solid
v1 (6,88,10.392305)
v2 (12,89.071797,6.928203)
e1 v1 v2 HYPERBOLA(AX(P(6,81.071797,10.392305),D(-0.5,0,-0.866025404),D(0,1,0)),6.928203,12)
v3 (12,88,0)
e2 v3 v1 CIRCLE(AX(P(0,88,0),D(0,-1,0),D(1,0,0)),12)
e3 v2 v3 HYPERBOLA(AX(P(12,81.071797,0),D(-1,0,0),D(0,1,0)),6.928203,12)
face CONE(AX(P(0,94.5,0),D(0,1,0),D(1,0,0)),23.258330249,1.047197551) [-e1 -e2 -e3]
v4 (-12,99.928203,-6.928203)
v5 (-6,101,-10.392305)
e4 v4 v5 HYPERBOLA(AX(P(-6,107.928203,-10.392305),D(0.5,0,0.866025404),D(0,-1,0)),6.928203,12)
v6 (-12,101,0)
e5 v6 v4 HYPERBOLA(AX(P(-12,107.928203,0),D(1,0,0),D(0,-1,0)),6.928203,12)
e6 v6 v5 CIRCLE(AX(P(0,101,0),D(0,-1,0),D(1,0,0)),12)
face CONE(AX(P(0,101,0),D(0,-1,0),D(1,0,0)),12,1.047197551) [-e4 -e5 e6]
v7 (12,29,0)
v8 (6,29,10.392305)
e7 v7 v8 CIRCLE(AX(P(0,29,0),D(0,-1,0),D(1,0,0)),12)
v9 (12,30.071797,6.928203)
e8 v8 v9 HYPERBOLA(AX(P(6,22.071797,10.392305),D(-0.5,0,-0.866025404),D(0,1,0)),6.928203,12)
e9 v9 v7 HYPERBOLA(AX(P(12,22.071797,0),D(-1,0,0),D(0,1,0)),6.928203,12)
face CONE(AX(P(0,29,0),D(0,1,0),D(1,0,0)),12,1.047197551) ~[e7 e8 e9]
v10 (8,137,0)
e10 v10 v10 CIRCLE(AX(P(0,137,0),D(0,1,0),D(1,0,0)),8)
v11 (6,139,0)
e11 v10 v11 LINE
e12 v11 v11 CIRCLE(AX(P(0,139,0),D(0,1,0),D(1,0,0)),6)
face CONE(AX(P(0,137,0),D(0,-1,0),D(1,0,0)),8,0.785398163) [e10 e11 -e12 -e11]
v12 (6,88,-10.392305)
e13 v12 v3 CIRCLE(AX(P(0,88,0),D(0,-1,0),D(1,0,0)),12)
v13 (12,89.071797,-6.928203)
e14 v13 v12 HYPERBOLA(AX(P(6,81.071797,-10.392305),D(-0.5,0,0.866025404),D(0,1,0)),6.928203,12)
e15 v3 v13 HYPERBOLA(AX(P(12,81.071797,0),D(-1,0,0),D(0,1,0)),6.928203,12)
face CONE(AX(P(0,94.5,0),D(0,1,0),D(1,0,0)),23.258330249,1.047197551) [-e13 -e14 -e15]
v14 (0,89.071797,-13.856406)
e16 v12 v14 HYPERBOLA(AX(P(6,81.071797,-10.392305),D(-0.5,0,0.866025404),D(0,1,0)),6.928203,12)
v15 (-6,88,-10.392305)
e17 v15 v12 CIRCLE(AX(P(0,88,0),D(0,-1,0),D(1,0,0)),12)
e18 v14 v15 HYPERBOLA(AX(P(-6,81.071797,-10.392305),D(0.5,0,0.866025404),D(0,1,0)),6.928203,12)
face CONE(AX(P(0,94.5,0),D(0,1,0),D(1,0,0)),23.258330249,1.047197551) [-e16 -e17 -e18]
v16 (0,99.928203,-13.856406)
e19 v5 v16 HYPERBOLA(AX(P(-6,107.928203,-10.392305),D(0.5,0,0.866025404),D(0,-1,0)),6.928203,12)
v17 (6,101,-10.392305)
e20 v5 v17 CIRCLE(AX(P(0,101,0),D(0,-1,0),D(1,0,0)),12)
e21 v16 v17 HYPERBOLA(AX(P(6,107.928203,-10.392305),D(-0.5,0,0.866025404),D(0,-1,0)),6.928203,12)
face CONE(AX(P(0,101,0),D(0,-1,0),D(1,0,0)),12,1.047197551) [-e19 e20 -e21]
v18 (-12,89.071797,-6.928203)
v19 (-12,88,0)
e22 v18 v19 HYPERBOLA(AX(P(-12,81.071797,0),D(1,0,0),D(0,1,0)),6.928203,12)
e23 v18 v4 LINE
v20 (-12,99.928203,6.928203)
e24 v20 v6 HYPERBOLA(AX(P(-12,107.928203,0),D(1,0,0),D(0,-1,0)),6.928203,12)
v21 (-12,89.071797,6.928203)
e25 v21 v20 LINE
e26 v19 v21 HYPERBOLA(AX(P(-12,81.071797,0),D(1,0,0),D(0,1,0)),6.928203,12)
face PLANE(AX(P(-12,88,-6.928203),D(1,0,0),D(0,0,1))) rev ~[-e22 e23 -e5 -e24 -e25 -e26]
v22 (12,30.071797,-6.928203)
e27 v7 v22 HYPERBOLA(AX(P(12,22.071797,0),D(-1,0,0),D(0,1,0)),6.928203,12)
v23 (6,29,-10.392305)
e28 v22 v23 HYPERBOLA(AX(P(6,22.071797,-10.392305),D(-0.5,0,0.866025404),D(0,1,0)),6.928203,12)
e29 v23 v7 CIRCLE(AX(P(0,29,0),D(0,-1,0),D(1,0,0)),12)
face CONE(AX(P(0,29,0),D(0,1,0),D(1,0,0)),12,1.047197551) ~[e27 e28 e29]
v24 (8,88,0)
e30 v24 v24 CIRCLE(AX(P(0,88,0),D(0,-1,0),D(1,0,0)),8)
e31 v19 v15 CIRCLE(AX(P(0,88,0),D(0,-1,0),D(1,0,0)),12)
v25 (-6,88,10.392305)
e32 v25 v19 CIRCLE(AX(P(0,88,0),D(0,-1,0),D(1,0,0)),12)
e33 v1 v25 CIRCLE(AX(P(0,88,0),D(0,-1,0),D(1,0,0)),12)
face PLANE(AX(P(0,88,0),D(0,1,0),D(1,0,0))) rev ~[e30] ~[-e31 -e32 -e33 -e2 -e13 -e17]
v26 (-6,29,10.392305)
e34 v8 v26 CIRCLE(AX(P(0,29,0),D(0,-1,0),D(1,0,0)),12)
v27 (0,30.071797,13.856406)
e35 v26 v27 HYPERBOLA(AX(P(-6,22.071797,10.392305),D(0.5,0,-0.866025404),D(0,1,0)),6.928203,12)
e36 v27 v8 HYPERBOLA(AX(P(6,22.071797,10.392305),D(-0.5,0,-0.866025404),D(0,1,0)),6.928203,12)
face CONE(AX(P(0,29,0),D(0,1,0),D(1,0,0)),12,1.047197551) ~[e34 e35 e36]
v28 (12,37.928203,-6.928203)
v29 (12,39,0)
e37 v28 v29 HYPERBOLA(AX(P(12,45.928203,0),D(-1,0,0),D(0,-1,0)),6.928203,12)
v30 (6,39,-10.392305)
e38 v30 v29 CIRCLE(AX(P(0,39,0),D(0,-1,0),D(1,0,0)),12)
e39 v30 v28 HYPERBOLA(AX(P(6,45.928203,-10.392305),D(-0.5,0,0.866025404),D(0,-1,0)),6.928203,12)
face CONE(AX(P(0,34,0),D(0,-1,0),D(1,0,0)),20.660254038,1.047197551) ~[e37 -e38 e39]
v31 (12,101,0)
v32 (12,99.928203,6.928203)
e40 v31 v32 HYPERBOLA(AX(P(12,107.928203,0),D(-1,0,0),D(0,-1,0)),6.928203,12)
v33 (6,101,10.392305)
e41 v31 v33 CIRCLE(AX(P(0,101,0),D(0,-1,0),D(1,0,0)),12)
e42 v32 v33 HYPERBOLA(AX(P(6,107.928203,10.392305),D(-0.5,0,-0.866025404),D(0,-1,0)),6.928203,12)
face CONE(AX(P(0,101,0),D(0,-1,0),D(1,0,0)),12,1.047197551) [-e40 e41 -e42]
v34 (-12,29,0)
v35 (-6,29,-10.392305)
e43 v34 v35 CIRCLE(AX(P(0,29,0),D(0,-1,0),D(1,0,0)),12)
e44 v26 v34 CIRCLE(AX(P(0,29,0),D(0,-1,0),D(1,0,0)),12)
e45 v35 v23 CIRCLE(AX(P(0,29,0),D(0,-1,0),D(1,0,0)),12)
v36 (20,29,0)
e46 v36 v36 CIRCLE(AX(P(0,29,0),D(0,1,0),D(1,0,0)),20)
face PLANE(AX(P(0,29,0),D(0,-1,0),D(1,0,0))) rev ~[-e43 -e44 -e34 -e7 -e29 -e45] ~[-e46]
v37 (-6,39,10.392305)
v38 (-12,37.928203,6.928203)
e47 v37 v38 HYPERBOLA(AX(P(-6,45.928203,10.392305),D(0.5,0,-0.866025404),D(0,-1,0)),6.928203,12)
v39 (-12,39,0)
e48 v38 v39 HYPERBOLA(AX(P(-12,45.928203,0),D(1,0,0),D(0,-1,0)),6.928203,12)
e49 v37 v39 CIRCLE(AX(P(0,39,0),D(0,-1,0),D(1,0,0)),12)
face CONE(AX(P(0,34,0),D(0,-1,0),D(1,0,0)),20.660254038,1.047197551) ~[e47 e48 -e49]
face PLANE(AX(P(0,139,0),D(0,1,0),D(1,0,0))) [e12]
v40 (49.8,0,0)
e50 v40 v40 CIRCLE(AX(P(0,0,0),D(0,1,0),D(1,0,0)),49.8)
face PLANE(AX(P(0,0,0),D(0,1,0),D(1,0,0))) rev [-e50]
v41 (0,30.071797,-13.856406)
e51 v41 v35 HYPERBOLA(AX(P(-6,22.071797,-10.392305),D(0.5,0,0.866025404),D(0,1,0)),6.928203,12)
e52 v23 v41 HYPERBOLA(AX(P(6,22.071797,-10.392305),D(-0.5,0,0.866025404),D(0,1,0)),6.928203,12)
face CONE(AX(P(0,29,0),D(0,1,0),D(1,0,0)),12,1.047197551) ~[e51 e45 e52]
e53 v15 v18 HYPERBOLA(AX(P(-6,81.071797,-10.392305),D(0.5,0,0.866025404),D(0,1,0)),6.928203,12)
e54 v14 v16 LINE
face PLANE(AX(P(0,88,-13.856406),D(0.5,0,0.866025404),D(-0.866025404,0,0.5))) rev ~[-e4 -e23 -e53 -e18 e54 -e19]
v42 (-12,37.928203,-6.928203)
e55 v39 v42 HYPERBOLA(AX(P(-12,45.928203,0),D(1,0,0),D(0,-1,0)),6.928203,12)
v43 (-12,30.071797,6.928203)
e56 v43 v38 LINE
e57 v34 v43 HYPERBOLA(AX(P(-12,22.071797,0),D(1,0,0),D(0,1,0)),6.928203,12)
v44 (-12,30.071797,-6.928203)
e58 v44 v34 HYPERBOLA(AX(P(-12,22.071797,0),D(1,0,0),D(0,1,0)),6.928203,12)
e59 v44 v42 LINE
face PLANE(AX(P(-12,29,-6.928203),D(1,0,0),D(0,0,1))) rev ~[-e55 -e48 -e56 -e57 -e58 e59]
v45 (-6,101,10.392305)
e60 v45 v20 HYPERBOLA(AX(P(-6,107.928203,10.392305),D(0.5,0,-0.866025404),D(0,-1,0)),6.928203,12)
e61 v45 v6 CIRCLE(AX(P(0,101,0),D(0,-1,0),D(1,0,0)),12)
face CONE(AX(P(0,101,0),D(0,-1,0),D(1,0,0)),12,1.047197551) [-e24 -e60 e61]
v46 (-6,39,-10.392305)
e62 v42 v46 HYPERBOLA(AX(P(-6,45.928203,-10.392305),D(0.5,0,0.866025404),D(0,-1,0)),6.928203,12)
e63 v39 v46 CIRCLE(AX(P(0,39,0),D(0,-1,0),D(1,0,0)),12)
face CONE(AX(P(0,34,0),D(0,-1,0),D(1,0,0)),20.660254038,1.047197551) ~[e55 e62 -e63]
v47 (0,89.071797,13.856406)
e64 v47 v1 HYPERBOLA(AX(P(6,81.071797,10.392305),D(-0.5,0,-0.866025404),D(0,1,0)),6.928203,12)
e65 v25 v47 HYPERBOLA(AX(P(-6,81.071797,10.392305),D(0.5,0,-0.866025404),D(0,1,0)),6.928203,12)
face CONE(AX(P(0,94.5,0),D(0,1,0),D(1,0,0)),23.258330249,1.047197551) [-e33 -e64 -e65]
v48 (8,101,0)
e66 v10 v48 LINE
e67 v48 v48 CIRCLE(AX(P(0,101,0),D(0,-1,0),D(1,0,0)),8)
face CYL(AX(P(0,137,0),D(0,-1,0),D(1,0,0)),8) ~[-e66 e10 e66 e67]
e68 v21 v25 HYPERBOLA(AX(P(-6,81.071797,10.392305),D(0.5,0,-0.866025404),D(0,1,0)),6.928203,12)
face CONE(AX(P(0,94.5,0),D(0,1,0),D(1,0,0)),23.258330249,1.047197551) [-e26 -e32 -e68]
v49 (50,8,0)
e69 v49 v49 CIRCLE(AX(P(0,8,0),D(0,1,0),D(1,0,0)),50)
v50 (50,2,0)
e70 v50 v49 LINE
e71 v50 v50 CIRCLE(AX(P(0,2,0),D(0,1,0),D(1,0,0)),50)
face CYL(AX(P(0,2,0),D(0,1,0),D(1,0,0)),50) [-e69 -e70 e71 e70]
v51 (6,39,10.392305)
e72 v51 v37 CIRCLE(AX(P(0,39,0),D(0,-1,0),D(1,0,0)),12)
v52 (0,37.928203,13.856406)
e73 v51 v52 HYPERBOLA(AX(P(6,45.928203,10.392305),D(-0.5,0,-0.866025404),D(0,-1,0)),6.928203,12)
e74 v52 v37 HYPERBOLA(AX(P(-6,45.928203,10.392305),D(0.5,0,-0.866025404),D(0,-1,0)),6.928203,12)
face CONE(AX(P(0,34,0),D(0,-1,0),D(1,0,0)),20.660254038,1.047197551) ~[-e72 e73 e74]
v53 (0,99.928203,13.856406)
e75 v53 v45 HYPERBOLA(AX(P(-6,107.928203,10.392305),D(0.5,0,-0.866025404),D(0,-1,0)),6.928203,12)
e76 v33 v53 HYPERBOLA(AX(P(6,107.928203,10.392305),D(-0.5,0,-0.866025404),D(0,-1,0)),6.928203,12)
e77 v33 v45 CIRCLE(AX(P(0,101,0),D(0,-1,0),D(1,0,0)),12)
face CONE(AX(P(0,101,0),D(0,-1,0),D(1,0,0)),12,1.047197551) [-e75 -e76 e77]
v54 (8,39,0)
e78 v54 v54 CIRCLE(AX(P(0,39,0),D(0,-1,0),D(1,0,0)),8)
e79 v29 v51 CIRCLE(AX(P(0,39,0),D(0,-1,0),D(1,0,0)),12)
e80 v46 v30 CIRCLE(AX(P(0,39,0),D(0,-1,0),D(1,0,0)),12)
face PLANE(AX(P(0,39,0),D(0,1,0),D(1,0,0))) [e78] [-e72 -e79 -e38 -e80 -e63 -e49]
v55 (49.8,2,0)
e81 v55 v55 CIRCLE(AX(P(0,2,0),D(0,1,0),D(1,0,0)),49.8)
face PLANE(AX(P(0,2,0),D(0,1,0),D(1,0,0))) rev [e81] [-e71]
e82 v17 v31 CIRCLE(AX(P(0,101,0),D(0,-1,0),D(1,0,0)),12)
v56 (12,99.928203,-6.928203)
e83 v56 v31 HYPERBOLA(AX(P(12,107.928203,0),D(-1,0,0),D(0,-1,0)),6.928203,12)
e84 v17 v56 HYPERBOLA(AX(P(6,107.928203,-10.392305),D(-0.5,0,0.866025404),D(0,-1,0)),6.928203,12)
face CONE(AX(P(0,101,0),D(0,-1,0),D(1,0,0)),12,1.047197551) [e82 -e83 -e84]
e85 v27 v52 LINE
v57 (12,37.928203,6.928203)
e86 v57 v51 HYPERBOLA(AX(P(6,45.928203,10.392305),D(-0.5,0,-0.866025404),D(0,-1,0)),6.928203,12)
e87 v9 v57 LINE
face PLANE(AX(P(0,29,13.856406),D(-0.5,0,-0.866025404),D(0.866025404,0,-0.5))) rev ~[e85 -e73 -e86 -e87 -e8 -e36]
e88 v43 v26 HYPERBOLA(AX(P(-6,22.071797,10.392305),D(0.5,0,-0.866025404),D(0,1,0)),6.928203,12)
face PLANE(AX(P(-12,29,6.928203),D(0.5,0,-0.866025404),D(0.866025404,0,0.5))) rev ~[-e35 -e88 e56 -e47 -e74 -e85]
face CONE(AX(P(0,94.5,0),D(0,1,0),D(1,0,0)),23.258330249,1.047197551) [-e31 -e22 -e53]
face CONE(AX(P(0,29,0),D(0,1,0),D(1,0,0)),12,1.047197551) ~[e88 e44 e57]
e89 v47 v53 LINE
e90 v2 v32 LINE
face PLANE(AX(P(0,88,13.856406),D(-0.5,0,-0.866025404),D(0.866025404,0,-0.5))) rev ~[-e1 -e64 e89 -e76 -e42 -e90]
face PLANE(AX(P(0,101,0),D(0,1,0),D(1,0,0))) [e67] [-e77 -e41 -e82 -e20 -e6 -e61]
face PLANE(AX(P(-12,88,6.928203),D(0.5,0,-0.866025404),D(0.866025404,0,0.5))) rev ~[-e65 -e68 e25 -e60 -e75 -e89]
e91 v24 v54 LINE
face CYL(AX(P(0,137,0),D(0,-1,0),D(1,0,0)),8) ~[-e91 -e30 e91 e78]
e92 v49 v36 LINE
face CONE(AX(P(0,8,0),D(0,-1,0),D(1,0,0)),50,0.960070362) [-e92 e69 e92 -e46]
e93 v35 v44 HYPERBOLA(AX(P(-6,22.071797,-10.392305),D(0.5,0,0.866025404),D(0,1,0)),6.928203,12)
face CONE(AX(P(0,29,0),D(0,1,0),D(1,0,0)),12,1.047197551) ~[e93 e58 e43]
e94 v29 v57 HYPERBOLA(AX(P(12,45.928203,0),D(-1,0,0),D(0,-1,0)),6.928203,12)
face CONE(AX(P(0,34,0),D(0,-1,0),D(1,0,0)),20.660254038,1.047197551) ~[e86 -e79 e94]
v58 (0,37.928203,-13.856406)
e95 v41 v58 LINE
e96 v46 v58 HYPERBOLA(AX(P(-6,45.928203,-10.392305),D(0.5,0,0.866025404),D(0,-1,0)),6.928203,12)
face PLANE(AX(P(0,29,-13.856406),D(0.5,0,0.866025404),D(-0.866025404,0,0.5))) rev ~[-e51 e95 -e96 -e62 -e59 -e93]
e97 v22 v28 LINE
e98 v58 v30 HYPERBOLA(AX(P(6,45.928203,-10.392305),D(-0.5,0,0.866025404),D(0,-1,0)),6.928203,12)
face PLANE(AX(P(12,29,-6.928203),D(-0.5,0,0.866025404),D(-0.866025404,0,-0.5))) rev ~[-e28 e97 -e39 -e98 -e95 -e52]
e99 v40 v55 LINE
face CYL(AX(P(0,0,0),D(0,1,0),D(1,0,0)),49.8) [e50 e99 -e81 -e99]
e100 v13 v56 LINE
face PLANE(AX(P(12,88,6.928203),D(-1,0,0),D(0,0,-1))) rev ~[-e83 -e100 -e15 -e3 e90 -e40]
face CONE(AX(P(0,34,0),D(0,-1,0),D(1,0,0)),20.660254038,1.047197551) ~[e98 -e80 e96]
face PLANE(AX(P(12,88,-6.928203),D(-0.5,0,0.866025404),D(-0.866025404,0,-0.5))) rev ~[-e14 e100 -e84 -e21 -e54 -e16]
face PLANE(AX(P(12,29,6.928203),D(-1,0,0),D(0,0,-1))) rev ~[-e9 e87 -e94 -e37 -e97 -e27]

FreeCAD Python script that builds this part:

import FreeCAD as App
import Part
import Sketcher
Q = App.Units.Quantity


def add_polygon(sketch, points):
    """Adds a closed chain of lines whose ends are joined by coincident constraints."""
    first, n = sketch.GeometryCount, len(points)
    for a, b in zip(points, points[1:] + points[:1]):
        sketch.addGeometry(Part.LineSegment(App.Vector(*a, 0), App.Vector(*b, 0)), False)
    for i in range(n):
        sketch.addConstraint(Sketcher.Constraint("Coincident", first + i, 2, first + (i + 1) % n, 1))

doc = App.newDocument("Part")
body = doc.addObject("PartDesign::Body", "Body")

# Sketch on XY plane
sketch1 = body.newObject("Sketcher::SketchObject", "Sketch")
sketch1.AttachmentSupport = (doc.getObject("XY_Plane"), [""])
sketch1.MapMode = "FlatFace"
add_polygon(sketch1, [(-49.8, 0), (0, 0), (0, 139), (-6, 139), (-8, 137), (-8, 29), (-20, 29), (-50, 8), (-50, 2), (-49.8, 2)])  # lines 0-9
sketch1.addConstraint(Sketcher.Constraint("Horizontal", 0))
sketch1.addConstraint(Sketcher.Constraint("Vertical", 1))
sketch1.addConstraint(Sketcher.Constraint("Horizontal", 2))
sketch1.addConstraint(Sketcher.Constraint("Vertical", 4))
sketch1.addConstraint(Sketcher.Constraint("Horizontal", 5))
sketch1.addConstraint(Sketcher.Constraint("Vertical", 7))
sketch1.addConstraint(Sketcher.Constraint("Horizontal", 8))
sketch1.addConstraint(Sketcher.Constraint("Vertical", 9))
sketch1.addConstraint(Sketcher.Constraint("Coincident", 0, 2, -1, 1))
sketch1.addConstraint(Sketcher.Constraint("Equal", 2, 7))
sketch1.addConstraint(Sketcher.Constraint("DistanceX", 2, 2, 2, 1, Q("6 mm")))
sketch1.addConstraint(Sketcher.Constraint("DistanceX", 5, 2, 5, 1, Q("12 mm")))
sketch1.addConstraint(Sketcher.Constraint("DistanceY", 1, 1, 1, 2, Q("139 mm")))
sketch1.addConstraint(Sketcher.Constraint("DistanceY", 4, 2, 4, 1, Q("108 mm")))
sketch1.addConstraint(Sketcher.Constraint("DistanceY", 9, 2, 9, 1, Q("2 mm")))
sketch1.addConstraint(Sketcher.Constraint("Angle", 3, Q("-135 deg")))
sketch1.addConstraint(Sketcher.Constraint("DistanceX", 0, 1, 0, 2, Q("49.8 mm")))
sketch1.addConstraint(Sketcher.Constraint("DistanceX", 8, 1, 8, 2, Q("0.2 mm")))
sketch1.addConstraint(Sketcher.Constraint("DistanceX", 3, 2, -1, 1, Q("8 mm")))
revolution = body.newObject("PartDesign::Revolution", "Revolution")
revolution.Profile = sketch1
revolution.ReferenceAxis = (sketch1, ["V_Axis"])
revolution.Angle = 360

# Sketch on XZ plane
sketch2 = body.newObject("Sketcher::SketchObject", "Sketch001")
sketch2.AttachmentSupport = (doc.getObject("XZ_Plane"), [""])
sketch2.MapMode = "FlatFace"
sketch2.AttachmentOffset = App.Placement(App.Vector(0, 0, -29), App.Rotation())
add_polygon(sketch2, [(0, -13.856406), (-12, -6.928203), (-12, 6.928203), (0, 13.856406), (12, 6.928203), (12, -6.928203)])  # lines 0-5
sketch2.addConstraint(Sketcher.Constraint("Vertical", 1))
sketch2.addConstraint(Sketcher.Constraint("Vertical", 4))
sketch2.addConstraint(Sketcher.Constraint("Symmetric", 0, 2, 3, 2, -1, 1))
sketch2.addConstraint(Sketcher.Constraint("Symmetric", 2, 2, 5, 2, -1, 1))
sketch2.addConstraint(Sketcher.Constraint("PointOnObject", 2, 2, -2))
sketch2.addConstraint(Sketcher.Constraint("Parallel", 2, 5))
sketch2.addConstraint(Sketcher.Constraint("Horizontal", 1, 2, 3, 2))
sketch2.addConstraint(Sketcher.Constraint("Angle", 0, Q("150 deg")))
sketch2.addConstraint(Sketcher.Constraint("DistanceX", 0, 2, -1, 1, Q("12 mm")))
sketch2.addConstraint(Sketcher.Constraint("DistanceY", 1, 1, 1, 2, Q("13.856406 mm")))
pad1 = body.newObject("PartDesign::Pad", "Pad")
pad1.Profile = sketch2
pad1.Length = 10
pad1.Reversed = True

# Sketch on XZ plane
sketch3 = body.newObject("Sketcher::SketchObject", "Sketch002")
sketch3.AttachmentSupport = (doc.getObject("XZ_Plane"), [""])
sketch3.MapMode = "FlatFace"
sketch3.AttachmentOffset = App.Placement(App.Vector(0, 0, -88), App.Rotation())
add_polygon(sketch3, [(12, -6.928203), (0, -13.856406), (-12, -6.928203), (-12, 6.928203), (0, 13.856406), (12, 6.928203)])  # lines 0-5
sketch3.addConstraint(Sketcher.Constraint("Vertical", 2))
sketch3.addConstraint(Sketcher.Constraint("Vertical", 5))
sketch3.addConstraint(Sketcher.Constraint("Symmetric", 0, 2, 3, 2, -1, 1))
sketch3.addConstraint(Sketcher.Constraint("Symmetric", 1, 2, 4, 2, -1, 1))
sketch3.addConstraint(Sketcher.Constraint("PointOnObject", 0, 2, -2))
sketch3.addConstraint(Sketcher.Constraint("Parallel", 0, 3))
sketch3.addConstraint(Sketcher.Constraint("Horizontal", 2, 2, 4, 2))
sketch3.addConstraint(Sketcher.Constraint("Angle", 0, Q("-150 deg")))
sketch3.addConstraint(Sketcher.Constraint("DistanceX", 1, 2, -1, 1, Q("12 mm")))
sketch3.addConstraint(Sketcher.Constraint("DistanceY", 2, 1, 2, 2, Q("13.856406 mm")))
pad2 = body.newObject("PartDesign::Pad", "Pad001")
pad2.Profile = sketch3
pad2.Length = 13
pad2.Reversed = True

# Sketch on XY plane
sketch4 = body.newObject("Sketcher::SketchObject", "Sketch003")
sketch4.AttachmentSupport = (doc.getObject("XY_Plane"), [""])
sketch4.MapMode = "FlatFace"
add_polygon(sketch4, [(-12, 101), (-23.25833, 101), (-23.25833, 94.5)])  # lines 0-2
add_polygon(sketch4, [(-23.25833, 94.5), (-23.25833, 88), (-12, 88)])  # lines 3-5
add_polygon(sketch4, [(-20.660254, 39), (-20.660254, 34), (-12, 39)])  # lines 6-8
add_polygon(sketch4, [(-20.660254, 34), (-20.660254, 29), (-12, 29)])  # lines 9-11
sketch4.addConstraint(Sketcher.Constraint("Horizontal", 0))
sketch4.addConstraint(Sketcher.Constraint("Vertical", 1))
sketch4.addConstraint(Sketcher.Constraint("Vertical", 3))
sketch4.addConstraint(Sketcher.Constraint("Horizontal", 4))
sketch4.addConstraint(Sketcher.Constraint("Vertical", 6))
sketch4.addConstraint(Sketcher.Constraint("Horizontal", 8))
sketch4.addConstraint(Sketcher.Constraint("Vertical", 9))
sketch4.addConstraint(Sketcher.Constraint("Horizontal", 10))
sketch4.addConstraint(Sketcher.Constraint("Coincident", 5, 2, 1, 2))
sketch4.addConstraint(Sketcher.Constraint("Coincident", 11, 2, 6, 2))
sketch4.addConstraint(Sketcher.Constraint("Parallel", 2, 7))
sketch4.addConstraint(Sketcher.Constraint("Parallel", 5, 11))
sketch4.addConstraint(Sketcher.Constraint("Vertical", 2, 2, 4, 2))
sketch4.addConstraint(Sketcher.Constraint("Vertical", 4, 2, 7, 2))
sketch4.addConstraint(Sketcher.Constraint("Vertical", 7, 2, 10, 2))
sketch4.addConstraint(Sketcher.Constraint("Equal", 1, 3))
sketch4.addConstraint(Sketcher.Constraint("DistanceY", 6, 2, 6, 1, Q("5 mm")))
sketch4.addConstraint(Sketcher.Constraint("Angle", 2, Q("30 deg")))
sketch4.addConstraint(Sketcher.Constraint("Distance", 2, Q("13 mm")))
sketch4.addConstraint(Sketcher.Constraint("DistanceY", -1, 1, 0, 2, Q("101 mm")))
sketch4.addConstraint(Sketcher.Constraint("DistanceX", 2, 2, -1, 1, Q("12 mm")))
sketch4.addConstraint(Sketcher.Constraint("DistanceY", -1, 1, 6, 2, Q("34 mm")))
groove = body.newObject("PartDesign::Groove", "Groove")
groove.Profile = sketch4
groove.ReferenceAxis = (sketch4, ["V_Axis"])
groove.Angle = 360

doc.recompute()
